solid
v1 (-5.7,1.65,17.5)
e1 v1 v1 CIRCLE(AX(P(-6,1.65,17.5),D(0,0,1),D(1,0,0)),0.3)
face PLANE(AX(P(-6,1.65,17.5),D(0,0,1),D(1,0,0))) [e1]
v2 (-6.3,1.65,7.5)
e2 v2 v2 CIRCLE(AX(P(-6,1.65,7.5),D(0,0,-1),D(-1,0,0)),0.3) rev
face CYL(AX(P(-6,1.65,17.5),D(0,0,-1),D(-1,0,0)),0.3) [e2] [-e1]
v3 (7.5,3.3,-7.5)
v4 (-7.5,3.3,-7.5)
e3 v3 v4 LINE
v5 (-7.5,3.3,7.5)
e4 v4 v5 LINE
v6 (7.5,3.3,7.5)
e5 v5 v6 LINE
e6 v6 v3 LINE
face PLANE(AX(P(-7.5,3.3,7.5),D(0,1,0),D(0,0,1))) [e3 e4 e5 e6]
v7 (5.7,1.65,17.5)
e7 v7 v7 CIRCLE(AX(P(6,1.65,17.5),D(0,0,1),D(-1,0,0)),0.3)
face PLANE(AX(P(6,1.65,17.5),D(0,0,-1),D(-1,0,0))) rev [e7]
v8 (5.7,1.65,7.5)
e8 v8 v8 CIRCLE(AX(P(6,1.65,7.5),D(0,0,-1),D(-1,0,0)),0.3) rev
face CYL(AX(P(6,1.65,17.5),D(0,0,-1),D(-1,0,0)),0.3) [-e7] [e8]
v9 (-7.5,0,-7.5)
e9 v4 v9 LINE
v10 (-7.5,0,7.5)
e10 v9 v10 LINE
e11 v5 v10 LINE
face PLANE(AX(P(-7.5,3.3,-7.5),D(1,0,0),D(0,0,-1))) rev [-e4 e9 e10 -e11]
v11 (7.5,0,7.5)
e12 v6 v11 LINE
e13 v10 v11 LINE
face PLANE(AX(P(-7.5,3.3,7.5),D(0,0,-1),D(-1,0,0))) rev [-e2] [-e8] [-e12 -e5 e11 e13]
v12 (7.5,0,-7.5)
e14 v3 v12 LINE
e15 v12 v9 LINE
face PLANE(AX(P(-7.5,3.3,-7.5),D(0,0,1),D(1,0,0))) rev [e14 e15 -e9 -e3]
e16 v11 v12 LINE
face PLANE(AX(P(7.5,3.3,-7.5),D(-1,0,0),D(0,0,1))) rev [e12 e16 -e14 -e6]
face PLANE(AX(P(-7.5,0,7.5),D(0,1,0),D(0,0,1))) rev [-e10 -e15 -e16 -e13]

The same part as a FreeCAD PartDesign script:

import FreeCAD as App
import Part
import Sketcher

V = App.Vector
Q = App.Units.Quantity

doc = App.newDocument("Part")
body = doc.addObject("PartDesign::Body", "Body")

sketch1 = body.newObject("Sketcher::SketchObject", "Sketch")
sketch1.AttachmentSupport = (doc.getObject("XZ_Plane"), [""])
sketch1.MapMode = "FlatFace"
sketch1.addGeometry([
    Part.LineSegment(V(-8, -8, 0), V(-8, 8, 0)),
    Part.LineSegment(V(-8, 8, 0), V(8, 8, 0)),
    Part.LineSegment(V(8, 8, 0), V(8, -8, 0)),
    Part.LineSegment(V(8, -8, 0), V(-8, -8, 0)),
], False)
sketch1.addConstraint([
    Sketcher.Constraint("Coincident", 0, 2, 1, 1),
    Sketcher.Constraint("Coincident", 1, 2, 2, 1),
    Sketcher.Constraint("Coincident", 2, 2, 3, 1),
    Sketcher.Constraint("Coincident", 3, 2, 0, 1),
    Sketcher.Constraint("Vertical", 0),
    Sketcher.Constraint("Horizontal", 1),
    Sketcher.Constraint("Vertical", 2),
    Sketcher.Constraint("Horizontal", 3),
    Sketcher.Constraint("Symmetric", 0, 2, 2, 2, -1, 1),
    Sketcher.Constraint("Equal", 3, 0),
    Sketcher.Constraint("DistanceX", 1, 1, 1, 2, Q("15 mm")),
])
pad1 = body.newObject("PartDesign::Pad", "Pad")
pad1.Profile = sketch1
pad1.Length = 3.3
pad1.Reversed = True

sketch2 = body.newObject("Sketcher::SketchObject", "Sketch001")
sketch2.AttachmentSupport = (doc.getObject("XY_Plane"), [""])
sketch2.MapMode = "FlatFace"
sketch2.AttachmentOffset = App.Placement(V(0, 0, 7.5), App.Rotation())
sketch2.addGeometry([
    Part.Circle(V(-6, 1.65, 0), V(0, 0, 1), 0.3),
    Part.Circle(V(6, 1.65, 0), V(0, 0, 1), 0.3),
], False)
sketch2.addConstraint([
    Sketcher.Constraint("Equal", 0, 1),
    Sketcher.Constraint("Symmetric", 0, 3, 1, 3, -2),
    Sketcher.Constraint("Diameter", 0, Q("0.6 mm")),
    Sketcher.Constraint("DistanceX", 0, 3, -1, 1, Q("6 mm")),
    Sketcher.Constraint("DistanceY", -1, 1, 0, 3, Q("1.65 mm")),
])
pad2 = body.newObject("PartDesign::Pad", "Pad001")
pad2.Profile = sketch2
pad2.Length = 10

doc.recompute()
